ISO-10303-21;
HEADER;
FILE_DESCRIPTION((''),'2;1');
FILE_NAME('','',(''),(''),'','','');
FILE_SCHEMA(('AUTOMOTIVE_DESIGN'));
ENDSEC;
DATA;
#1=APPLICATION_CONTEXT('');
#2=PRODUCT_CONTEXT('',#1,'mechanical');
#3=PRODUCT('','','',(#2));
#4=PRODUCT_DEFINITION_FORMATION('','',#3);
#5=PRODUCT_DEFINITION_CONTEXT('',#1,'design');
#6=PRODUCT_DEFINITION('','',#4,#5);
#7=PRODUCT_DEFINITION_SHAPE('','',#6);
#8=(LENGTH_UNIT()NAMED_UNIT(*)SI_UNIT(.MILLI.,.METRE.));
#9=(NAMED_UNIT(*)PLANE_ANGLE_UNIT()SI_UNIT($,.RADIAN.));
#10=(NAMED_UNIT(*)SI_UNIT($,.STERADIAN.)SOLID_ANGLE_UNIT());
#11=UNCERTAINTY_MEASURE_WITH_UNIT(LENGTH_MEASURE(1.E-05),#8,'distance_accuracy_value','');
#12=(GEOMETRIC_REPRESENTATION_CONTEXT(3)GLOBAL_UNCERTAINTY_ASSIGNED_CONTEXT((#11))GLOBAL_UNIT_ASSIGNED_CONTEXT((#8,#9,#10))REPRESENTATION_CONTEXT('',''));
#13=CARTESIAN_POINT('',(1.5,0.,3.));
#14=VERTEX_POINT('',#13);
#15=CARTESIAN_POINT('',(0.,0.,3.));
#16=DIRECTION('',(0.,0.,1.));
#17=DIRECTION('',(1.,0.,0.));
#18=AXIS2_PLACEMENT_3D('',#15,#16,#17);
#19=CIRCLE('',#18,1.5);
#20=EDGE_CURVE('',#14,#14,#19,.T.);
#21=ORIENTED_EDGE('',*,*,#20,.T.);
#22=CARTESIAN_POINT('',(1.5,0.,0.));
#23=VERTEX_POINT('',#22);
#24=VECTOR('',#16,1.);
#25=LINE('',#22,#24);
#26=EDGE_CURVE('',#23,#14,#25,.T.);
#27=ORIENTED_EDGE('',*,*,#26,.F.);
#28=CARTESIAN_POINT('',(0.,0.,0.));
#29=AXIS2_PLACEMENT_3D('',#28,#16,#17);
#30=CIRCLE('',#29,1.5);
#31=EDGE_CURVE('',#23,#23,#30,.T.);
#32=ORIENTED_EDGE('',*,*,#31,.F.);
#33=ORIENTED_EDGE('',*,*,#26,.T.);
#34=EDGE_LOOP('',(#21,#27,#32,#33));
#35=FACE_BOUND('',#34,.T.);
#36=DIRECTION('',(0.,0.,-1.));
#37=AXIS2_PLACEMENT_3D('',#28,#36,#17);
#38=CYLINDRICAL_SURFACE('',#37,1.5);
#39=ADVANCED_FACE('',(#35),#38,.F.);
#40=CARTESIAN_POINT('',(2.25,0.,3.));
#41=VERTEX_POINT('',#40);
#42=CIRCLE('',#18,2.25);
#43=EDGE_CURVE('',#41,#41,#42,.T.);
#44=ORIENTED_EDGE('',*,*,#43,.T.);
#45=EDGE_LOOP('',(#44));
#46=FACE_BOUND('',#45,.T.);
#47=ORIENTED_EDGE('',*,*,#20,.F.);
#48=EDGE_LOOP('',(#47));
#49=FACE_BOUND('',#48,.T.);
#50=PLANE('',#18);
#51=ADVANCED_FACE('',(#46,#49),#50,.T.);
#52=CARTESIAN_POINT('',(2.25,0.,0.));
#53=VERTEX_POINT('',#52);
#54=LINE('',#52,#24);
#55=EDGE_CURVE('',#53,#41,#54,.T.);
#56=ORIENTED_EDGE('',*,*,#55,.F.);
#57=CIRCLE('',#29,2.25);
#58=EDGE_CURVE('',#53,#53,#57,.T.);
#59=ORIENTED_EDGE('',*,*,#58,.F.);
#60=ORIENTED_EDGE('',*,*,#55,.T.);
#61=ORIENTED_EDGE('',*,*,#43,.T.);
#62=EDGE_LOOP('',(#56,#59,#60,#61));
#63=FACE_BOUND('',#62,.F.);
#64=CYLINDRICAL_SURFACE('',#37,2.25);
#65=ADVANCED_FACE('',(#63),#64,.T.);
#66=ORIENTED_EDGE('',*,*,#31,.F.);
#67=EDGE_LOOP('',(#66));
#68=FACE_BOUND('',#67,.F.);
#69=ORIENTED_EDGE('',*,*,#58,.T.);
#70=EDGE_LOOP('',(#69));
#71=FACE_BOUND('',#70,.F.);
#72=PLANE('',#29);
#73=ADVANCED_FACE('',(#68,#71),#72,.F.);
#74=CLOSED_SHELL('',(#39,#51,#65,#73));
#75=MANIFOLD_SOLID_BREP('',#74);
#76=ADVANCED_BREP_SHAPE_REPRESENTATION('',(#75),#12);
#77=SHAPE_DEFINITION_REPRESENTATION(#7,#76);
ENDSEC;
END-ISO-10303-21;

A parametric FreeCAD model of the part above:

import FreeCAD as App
import Part
import Sketcher

V = App.Vector
Q = App.Units.Quantity

doc = App.newDocument("Part")
body = doc.addObject("PartDesign::Body", "Body")

# Sketch on XY plane
sketch1 = body.newObject("Sketcher::SketchObject", "Sketch")
sketch1.AttachmentSupport = (doc.getObject("XY_Plane"), [""])
sketch1.MapMode = "FlatFace"
sketch1.addGeometry(Part.Circle(V(0, 0, 0), V(0, 0, 1), 2.2), False)
sketch1.addGeometry(Part.Circle(V(0, 0, 0), V(0, 0, 1), 1.5), False)
sketch1.addConstraint(Sketcher.Constraint("Coincident", 0, 3, -1, 1))
sketch1.addConstraint(Sketcher.Constraint("Coincident", 1, 3, -1, 1))
sketch1.addConstraint(Sketcher.Constraint("Diameter", 1, Q("3 mm")))
sketch1.addConstraint(Sketcher.Constraint("Diameter", 0, Q("4.5 mm")))
pad1 = body.newObject("PartDesign::Pad", "Pad")
pad1.Profile = sketch1
pad1.Length = 3

doc.recompute()
